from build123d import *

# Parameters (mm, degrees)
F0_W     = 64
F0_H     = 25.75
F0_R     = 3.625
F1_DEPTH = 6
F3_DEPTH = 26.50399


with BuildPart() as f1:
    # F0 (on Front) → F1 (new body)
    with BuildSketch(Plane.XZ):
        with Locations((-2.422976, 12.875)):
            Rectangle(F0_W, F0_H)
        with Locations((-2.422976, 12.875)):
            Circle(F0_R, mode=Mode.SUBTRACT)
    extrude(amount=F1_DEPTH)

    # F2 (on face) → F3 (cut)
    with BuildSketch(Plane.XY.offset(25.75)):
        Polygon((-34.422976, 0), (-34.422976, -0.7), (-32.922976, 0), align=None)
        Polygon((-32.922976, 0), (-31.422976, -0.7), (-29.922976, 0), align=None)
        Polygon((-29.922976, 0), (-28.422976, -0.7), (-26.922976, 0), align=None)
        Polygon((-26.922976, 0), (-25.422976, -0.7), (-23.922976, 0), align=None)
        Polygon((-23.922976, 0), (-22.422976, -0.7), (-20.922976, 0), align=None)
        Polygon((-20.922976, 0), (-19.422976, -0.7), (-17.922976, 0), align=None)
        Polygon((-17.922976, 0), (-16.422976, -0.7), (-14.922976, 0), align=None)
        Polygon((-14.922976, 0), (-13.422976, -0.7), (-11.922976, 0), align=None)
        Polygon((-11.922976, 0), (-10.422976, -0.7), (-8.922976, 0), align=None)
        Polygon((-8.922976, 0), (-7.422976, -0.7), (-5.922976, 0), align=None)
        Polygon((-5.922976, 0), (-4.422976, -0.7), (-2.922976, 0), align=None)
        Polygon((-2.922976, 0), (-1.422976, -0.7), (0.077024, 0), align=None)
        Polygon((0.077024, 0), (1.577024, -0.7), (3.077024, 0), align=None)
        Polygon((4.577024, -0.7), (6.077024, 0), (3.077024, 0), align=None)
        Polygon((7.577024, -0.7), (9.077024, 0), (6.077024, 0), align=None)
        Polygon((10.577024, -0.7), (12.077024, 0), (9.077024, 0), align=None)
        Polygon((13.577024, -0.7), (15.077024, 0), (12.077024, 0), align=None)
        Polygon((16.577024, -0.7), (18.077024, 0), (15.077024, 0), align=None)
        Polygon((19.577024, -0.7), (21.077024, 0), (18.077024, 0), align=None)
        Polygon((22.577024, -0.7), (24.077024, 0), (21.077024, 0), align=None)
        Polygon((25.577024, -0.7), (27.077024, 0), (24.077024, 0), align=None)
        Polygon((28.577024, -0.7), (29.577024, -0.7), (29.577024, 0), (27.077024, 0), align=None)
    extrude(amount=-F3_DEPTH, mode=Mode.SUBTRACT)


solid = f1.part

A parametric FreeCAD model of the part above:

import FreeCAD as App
import Part
import Sketcher

V = App.Vector
Q = App.Units.Quantity


def add_polygon(sketch, points):
    """Adds a closed chain of lines whose ends are joined by coincident constraints."""
    first, n = sketch.GeometryCount, len(points)
    for a, b in zip(points, points[1:] + points[:1]):
        sketch.addGeometry(Part.LineSegment(App.Vector(*a, 0), App.Vector(*b, 0)), False)
    for i in range(n):
        sketch.addConstraint(Sketcher.Constraint("Coincident", first + i, 2, first + (i + 1) % n, 1))

doc = App.newDocument("Part")
body = doc.addObject("PartDesign::Body", "Body")

# Sketch on XZ plane
sketch1 = body.newObject("Sketcher::SketchObject", "Sketch")
sketch1.AttachmentSupport = (doc.getObject("XZ_Plane"), [""])
sketch1.MapMode = "FlatFace"
add_polygon(sketch1, [(-34.4, 25.8), (-34.4, 0), (29.6, 0), (29.6, 25.8)])  # lines 0-3
sketch1.addGeometry(Part.Circle(V(-2.4, 12.9, 0), V(0, 0, 1), 3.6), False)  # 4
sketch1.addConstraint([
    Sketcher.Constraint("Vertical", 0),
    Sketcher.Constraint("Horizontal", 1),
    Sketcher.Constraint("Vertical", 2),
    Sketcher.Constraint("Horizontal", 3),
    Sketcher.Constraint("PointOnObject", 0, 2, -1),
    Sketcher.Constraint("Diameter", 4, Q("7.25 mm")),
    Sketcher.Constraint("DistanceX", 1, 1, 1, 2, Q("64 mm")),
    Sketcher.Constraint("DistanceX", 0, 2, 4, 3, Q("32 mm")),
    Sketcher.Constraint("DistanceY", 0, 2, 0, 1, Q("25.75 mm")),
    Sketcher.Constraint("DistanceY", -1, 1, 4, 3, Q("12.875 mm")),
    Sketcher.Constraint("DistanceX", 4, 3, -1, 1, Q("2.422976 mm")),
])
pad1 = body.newObject("PartDesign::Pad", "Pad")
pad1.Profile = sketch1
pad1.Length = 6

# Sketch on XY plane
sketch2 = body.newObject("Sketcher::SketchObject", "Sketch001")
sketch2.AttachmentSupport = (doc.getObject("XY_Plane"), [""])
sketch2.MapMode = "FlatFace"
sketch2.AttachmentOffset = App.Placement(V(0, 0, 25.75), App.Rotation())
add_polygon(sketch2, [(-34.4, 0), (-34.4, -0.7), (-32.9, 0)])  # lines 0-2
add_polygon(sketch2, [(-32.9, 0), (-31.4, -0.7), (-29.9, 0)])  # lines 3-5
add_polygon(sketch2, [(-29.9, 0), (-28.4, -0.7), (-26.9, 0)])  # lines 6-8
add_polygon(sketch2, [(-26.9, 0), (-25.4, -0.7), (-23.9, 0)])  # lines 9-11
add_polygon(sketch2, [(-23.9, 0), (-22.4, -0.7), (-20.9, 0)])  # lines 12-14
add_polygon(sketch2, [(-20.9, 0), (-19.4, -0.7), (-17.9, 0)])  # lines 15-17
add_polygon(sketch2, [(-17.9, 0), (-16.4, -0.7), (-14.9, 0)])  # lines 18-20
add_polygon(sketch2, [(-14.9, 0), (-13.4, -0.7), (-11.9, 0)])  # lines 21-23
add_polygon(sketch2, [(-11.9, 0), (-10.4, -0.7), (-8.9, 0)])  # lines 24-26
add_polygon(sketch2, [(-8.9, 0), (-7.4, -0.7), (-5.9, 0)])  # lines 27-29
add_polygon(sketch2, [(-5.9, 0), (-4.4, -0.7), (-2.9, 0)])  # lines 30-32
add_polygon(sketch2, [(-2.9, 0), (-1.4, -0.7), (0.1, 0)])  # lines 33-35
add_polygon(sketch2, [(0.1, 0), (1.6, -0.7), (3.1, 0)])  # lines 36-38
add_polygon(sketch2, [(4.6, -0.7), (6.1, 0), (3.1, 0)])  # lines 39-41
add_polygon(sketch2, [(7.6, -0.7), (9.1, 0), (6.1, 0)])  # lines 42-44
add_polygon(sketch2, [(10.6, -0.7), (12.1, 0), (9.1, 0)])  # lines 45-47
add_polygon(sketch2, [(13.6, -0.7), (15.1, 0), (12.1, 0)])  # lines 48-50
add_polygon(sketch2, [(16.6, -0.7), (18.1, 0), (15.1, 0)])  # lines 51-53
add_polygon(sketch2, [(19.6, -0.7), (21.1, 0), (18.1, 0)])  # lines 54-56
add_polygon(sketch2, [(22.6, -0.7), (24.1, 0), (21.1, 0)])  # lines 57-59
add_polygon(sketch2, [(25.6, -0.7), (27.1, 0), (24.1, 0)])  # lines 60-62
add_polygon(sketch2, [(28.6, -0.7), (29.6, -0.7), (29.6, 0), (27.1, 0)])  # lines 63-66
sketch2.addConstraint([
    Sketcher.Constraint("Vertical", 0),
    Sketcher.Constraint("Horizontal", 2),
    Sketcher.Constraint("Horizontal", 5),
    Sketcher.Constraint("Horizontal", 8),
    Sketcher.Constraint("Horizontal", 11),
    Sketcher.Constraint("Horizontal", 14),
    Sketcher.Constraint("Horizontal", 17),
    Sketcher.Constraint("Horizontal", 20),
    Sketcher.Constraint("Horizontal", 23),
    Sketcher.Constraint("Horizontal", 26),
    Sketcher.Constraint("Horizontal", 29),
    Sketcher.Constraint("Horizontal", 32),
    Sketcher.Constraint("Horizontal", 35),
    Sketcher.Constraint("Horizontal", 38),
    Sketcher.Constraint("Horizontal", 40),
    Sketcher.Constraint("Horizontal", 43),
    Sketcher.Constraint("Horizontal", 46),
    Sketcher.Constraint("Horizontal", 49),
    Sketcher.Constraint("Horizontal", 52),
    Sketcher.Constraint("Horizontal", 55),
    Sketcher.Constraint("Horizontal", 58),
    Sketcher.Constraint("Horizontal", 61),
    Sketcher.Constraint("Horizontal", 63),
    Sketcher.Constraint("Vertical", 64),
    Sketcher.Constraint("Horizontal", 65),
    Sketcher.Constraint("Coincident", 5, 2, 1, 2),
    Sketcher.Constraint("Coincident", 8, 2, 4, 2),
    Sketcher.Constraint("Coincident", 11, 2, 7, 2),
    Sketcher.Constraint("Coincident", 14, 2, 10, 2),
    Sketcher.Constraint("Coincident", 17, 2, 13, 2),
    Sketcher.Constraint("Coincident", 20, 2, 16, 2),
    Sketcher.Constraint("Coincident", 23, 2, 19, 2),
    Sketcher.Constraint("Coincident", 26, 2, 22, 2),
    Sketcher.Constraint("Coincident", 29, 2, 25, 2),
    Sketcher.Constraint("Coincident", 32, 2, 28, 2),
    Sketcher.Constraint("Coincident", 35, 2, 31, 2),
    Sketcher.Constraint("Coincident", 38, 2, 34, 2),
    Sketcher.Constraint("Coincident", 40, 2, 37, 2),
    Sketcher.Constraint("Coincident", 43, 2, 39, 2),
    Sketcher.Constraint("Coincident", 46, 2, 42, 2),
    Sketcher.Constraint("Coincident", 49, 2, 45, 2),
    Sketcher.Constraint("Coincident", 52, 2, 48, 2),
    Sketcher.Constraint("Coincident", 55, 2, 51, 2),
    Sketcher.Constraint("Coincident", 58, 2, 54, 2),
    Sketcher.Constraint("Coincident", 61, 2, 57, 2),
    Sketcher.Constraint("Coincident", 65, 2, 60, 2),
    Sketcher.Constraint("PointOnObject", 1, 2, -1),
    Sketcher.Constraint("Parallel", 1, 4),
    Sketcher.Constraint("Parallel", 3, 6),
    Sketcher.Constraint("Parallel", 4, 7),
    Sketcher.Constraint("Parallel", 6, 9),
    Sketcher.Constraint("Parallel", 7, 10),
    Sketcher.Constraint("Parallel", 9, 12),
    Sketcher.Constraint("Parallel", 10, 13),
    Sketcher.Constraint("Parallel", 12, 15),
    Sketcher.Constraint("Parallel", 13, 16),
    Sketcher.Constraint("Parallel", 15, 18),
    Sketcher.Constraint("Parallel", 16, 19),
    Sketcher.Constraint("Parallel", 18, 21),
    Sketcher.Constraint("Parallel", 19, 22),
    Sketcher.Constraint("Parallel", 21, 24),
    Sketcher.Constraint("Parallel", 22, 25),
    Sketcher.Constraint("Parallel", 24, 27),
    Sketcher.Constraint("Parallel", 25, 28),
    Sketcher.Constraint("Parallel", 27, 30),
    Sketcher.Constraint("Parallel", 28, 31),
    Sketcher.Constraint("Parallel", 30, 33),
    Sketcher.Constraint("Parallel", 31, 34),
    Sketcher.Constraint("Parallel", 33, 36),
    Sketcher.Constraint("Parallel", 34, 37),
    Sketcher.Constraint("Parallel", 37, 39),
    Sketcher.Constraint("Parallel", 36, 41),
    Sketcher.Constraint("Parallel", 39, 42),
    Sketcher.Constraint("Parallel", 41, 44),
    Sketcher.Constraint("Parallel", 42, 45),
    Sketcher.Constraint("Parallel", 44, 47),
    Sketcher.Constraint("Parallel", 45, 48),
    Sketcher.Constraint("Parallel", 47, 50),
    Sketcher.Constraint("Parallel", 48, 51),
    Sketcher.Constraint("Parallel", 50, 53),
    Sketcher.Constraint("Parallel", 51, 54),
    Sketcher.Constraint("Parallel", 53, 56),
    Sketcher.Constraint("Parallel", 54, 57),
    Sketcher.Constraint("Parallel", 56, 59),
    Sketcher.Constraint("Parallel", 57, 60),
    Sketcher.Constraint("Parallel", 59, 62),
    Sketcher.Constraint("Parallel", 62, 66),
    Sketcher.Constraint("Horizontal", 0, 2, 3, 2),
    Sketcher.Constraint("Horizontal", 3, 2, 6, 2),
    Sketcher.Constraint("Horizontal", 6, 2, 9, 2),
    Sketcher.Constraint("Horizontal", 9, 2, 12, 2),
    Sketcher.Constraint("Horizontal", 12, 2, 15, 2),
    Sketcher.Constraint("Horizontal", 15, 2, 18, 2),
    Sketcher.Constraint("Horizontal", 18, 2, 21, 2),
    Sketcher.Constraint("Horizontal", 21, 2, 24, 2),
    Sketcher.Constraint("Horizontal", 24, 2, 27, 2),
    Sketcher.Constraint("Horizontal", 27, 2, 30, 2),
    Sketcher.Constraint("Horizontal", 30, 2, 33, 2),
    Sketcher.Constraint("Horizontal", 33, 2, 36, 2),
    Sketcher.Constraint("Horizontal", 36, 2, 41, 2),
    Sketcher.Constraint("Horizontal", 41, 2, 44, 2),
    Sketcher.Constraint("Horizontal", 44, 2, 47, 2),
    Sketcher.Constraint("Horizontal", 47, 2, 50, 2),
    Sketcher.Constraint("Horizontal", 50, 2, 53, 2),
    Sketcher.Constraint("Horizontal", 53, 2, 56, 2),
    Sketcher.Constraint("Horizontal", 56, 2, 59, 2),
    Sketcher.Constraint("Horizontal", 59, 2, 62, 2),
    Sketcher.Constraint("Horizontal", 62, 2, 63, 2),
    Sketcher.Constraint("Equal", 1, 3),
    Sketcher.Constraint("DistanceX", 5, 2, 5, 1, Q("3 mm")),
    Sketcher.Constraint("DistanceX", 63, 1, 63, 2, Q("1 mm")),
    Sketcher.Constraint("DistanceY", 0, 2, 0, 1, Q("0.7 mm")),
    Sketcher.Constraint("DistanceX", 0, 2, -1, 1, Q("34.422976 mm")),
])
pocket1 = body.newObject("PartDesign::Pocket", "Pocket")
pocket1.Profile = sketch2
pocket1.Length = 26.50399

doc.recompute()
